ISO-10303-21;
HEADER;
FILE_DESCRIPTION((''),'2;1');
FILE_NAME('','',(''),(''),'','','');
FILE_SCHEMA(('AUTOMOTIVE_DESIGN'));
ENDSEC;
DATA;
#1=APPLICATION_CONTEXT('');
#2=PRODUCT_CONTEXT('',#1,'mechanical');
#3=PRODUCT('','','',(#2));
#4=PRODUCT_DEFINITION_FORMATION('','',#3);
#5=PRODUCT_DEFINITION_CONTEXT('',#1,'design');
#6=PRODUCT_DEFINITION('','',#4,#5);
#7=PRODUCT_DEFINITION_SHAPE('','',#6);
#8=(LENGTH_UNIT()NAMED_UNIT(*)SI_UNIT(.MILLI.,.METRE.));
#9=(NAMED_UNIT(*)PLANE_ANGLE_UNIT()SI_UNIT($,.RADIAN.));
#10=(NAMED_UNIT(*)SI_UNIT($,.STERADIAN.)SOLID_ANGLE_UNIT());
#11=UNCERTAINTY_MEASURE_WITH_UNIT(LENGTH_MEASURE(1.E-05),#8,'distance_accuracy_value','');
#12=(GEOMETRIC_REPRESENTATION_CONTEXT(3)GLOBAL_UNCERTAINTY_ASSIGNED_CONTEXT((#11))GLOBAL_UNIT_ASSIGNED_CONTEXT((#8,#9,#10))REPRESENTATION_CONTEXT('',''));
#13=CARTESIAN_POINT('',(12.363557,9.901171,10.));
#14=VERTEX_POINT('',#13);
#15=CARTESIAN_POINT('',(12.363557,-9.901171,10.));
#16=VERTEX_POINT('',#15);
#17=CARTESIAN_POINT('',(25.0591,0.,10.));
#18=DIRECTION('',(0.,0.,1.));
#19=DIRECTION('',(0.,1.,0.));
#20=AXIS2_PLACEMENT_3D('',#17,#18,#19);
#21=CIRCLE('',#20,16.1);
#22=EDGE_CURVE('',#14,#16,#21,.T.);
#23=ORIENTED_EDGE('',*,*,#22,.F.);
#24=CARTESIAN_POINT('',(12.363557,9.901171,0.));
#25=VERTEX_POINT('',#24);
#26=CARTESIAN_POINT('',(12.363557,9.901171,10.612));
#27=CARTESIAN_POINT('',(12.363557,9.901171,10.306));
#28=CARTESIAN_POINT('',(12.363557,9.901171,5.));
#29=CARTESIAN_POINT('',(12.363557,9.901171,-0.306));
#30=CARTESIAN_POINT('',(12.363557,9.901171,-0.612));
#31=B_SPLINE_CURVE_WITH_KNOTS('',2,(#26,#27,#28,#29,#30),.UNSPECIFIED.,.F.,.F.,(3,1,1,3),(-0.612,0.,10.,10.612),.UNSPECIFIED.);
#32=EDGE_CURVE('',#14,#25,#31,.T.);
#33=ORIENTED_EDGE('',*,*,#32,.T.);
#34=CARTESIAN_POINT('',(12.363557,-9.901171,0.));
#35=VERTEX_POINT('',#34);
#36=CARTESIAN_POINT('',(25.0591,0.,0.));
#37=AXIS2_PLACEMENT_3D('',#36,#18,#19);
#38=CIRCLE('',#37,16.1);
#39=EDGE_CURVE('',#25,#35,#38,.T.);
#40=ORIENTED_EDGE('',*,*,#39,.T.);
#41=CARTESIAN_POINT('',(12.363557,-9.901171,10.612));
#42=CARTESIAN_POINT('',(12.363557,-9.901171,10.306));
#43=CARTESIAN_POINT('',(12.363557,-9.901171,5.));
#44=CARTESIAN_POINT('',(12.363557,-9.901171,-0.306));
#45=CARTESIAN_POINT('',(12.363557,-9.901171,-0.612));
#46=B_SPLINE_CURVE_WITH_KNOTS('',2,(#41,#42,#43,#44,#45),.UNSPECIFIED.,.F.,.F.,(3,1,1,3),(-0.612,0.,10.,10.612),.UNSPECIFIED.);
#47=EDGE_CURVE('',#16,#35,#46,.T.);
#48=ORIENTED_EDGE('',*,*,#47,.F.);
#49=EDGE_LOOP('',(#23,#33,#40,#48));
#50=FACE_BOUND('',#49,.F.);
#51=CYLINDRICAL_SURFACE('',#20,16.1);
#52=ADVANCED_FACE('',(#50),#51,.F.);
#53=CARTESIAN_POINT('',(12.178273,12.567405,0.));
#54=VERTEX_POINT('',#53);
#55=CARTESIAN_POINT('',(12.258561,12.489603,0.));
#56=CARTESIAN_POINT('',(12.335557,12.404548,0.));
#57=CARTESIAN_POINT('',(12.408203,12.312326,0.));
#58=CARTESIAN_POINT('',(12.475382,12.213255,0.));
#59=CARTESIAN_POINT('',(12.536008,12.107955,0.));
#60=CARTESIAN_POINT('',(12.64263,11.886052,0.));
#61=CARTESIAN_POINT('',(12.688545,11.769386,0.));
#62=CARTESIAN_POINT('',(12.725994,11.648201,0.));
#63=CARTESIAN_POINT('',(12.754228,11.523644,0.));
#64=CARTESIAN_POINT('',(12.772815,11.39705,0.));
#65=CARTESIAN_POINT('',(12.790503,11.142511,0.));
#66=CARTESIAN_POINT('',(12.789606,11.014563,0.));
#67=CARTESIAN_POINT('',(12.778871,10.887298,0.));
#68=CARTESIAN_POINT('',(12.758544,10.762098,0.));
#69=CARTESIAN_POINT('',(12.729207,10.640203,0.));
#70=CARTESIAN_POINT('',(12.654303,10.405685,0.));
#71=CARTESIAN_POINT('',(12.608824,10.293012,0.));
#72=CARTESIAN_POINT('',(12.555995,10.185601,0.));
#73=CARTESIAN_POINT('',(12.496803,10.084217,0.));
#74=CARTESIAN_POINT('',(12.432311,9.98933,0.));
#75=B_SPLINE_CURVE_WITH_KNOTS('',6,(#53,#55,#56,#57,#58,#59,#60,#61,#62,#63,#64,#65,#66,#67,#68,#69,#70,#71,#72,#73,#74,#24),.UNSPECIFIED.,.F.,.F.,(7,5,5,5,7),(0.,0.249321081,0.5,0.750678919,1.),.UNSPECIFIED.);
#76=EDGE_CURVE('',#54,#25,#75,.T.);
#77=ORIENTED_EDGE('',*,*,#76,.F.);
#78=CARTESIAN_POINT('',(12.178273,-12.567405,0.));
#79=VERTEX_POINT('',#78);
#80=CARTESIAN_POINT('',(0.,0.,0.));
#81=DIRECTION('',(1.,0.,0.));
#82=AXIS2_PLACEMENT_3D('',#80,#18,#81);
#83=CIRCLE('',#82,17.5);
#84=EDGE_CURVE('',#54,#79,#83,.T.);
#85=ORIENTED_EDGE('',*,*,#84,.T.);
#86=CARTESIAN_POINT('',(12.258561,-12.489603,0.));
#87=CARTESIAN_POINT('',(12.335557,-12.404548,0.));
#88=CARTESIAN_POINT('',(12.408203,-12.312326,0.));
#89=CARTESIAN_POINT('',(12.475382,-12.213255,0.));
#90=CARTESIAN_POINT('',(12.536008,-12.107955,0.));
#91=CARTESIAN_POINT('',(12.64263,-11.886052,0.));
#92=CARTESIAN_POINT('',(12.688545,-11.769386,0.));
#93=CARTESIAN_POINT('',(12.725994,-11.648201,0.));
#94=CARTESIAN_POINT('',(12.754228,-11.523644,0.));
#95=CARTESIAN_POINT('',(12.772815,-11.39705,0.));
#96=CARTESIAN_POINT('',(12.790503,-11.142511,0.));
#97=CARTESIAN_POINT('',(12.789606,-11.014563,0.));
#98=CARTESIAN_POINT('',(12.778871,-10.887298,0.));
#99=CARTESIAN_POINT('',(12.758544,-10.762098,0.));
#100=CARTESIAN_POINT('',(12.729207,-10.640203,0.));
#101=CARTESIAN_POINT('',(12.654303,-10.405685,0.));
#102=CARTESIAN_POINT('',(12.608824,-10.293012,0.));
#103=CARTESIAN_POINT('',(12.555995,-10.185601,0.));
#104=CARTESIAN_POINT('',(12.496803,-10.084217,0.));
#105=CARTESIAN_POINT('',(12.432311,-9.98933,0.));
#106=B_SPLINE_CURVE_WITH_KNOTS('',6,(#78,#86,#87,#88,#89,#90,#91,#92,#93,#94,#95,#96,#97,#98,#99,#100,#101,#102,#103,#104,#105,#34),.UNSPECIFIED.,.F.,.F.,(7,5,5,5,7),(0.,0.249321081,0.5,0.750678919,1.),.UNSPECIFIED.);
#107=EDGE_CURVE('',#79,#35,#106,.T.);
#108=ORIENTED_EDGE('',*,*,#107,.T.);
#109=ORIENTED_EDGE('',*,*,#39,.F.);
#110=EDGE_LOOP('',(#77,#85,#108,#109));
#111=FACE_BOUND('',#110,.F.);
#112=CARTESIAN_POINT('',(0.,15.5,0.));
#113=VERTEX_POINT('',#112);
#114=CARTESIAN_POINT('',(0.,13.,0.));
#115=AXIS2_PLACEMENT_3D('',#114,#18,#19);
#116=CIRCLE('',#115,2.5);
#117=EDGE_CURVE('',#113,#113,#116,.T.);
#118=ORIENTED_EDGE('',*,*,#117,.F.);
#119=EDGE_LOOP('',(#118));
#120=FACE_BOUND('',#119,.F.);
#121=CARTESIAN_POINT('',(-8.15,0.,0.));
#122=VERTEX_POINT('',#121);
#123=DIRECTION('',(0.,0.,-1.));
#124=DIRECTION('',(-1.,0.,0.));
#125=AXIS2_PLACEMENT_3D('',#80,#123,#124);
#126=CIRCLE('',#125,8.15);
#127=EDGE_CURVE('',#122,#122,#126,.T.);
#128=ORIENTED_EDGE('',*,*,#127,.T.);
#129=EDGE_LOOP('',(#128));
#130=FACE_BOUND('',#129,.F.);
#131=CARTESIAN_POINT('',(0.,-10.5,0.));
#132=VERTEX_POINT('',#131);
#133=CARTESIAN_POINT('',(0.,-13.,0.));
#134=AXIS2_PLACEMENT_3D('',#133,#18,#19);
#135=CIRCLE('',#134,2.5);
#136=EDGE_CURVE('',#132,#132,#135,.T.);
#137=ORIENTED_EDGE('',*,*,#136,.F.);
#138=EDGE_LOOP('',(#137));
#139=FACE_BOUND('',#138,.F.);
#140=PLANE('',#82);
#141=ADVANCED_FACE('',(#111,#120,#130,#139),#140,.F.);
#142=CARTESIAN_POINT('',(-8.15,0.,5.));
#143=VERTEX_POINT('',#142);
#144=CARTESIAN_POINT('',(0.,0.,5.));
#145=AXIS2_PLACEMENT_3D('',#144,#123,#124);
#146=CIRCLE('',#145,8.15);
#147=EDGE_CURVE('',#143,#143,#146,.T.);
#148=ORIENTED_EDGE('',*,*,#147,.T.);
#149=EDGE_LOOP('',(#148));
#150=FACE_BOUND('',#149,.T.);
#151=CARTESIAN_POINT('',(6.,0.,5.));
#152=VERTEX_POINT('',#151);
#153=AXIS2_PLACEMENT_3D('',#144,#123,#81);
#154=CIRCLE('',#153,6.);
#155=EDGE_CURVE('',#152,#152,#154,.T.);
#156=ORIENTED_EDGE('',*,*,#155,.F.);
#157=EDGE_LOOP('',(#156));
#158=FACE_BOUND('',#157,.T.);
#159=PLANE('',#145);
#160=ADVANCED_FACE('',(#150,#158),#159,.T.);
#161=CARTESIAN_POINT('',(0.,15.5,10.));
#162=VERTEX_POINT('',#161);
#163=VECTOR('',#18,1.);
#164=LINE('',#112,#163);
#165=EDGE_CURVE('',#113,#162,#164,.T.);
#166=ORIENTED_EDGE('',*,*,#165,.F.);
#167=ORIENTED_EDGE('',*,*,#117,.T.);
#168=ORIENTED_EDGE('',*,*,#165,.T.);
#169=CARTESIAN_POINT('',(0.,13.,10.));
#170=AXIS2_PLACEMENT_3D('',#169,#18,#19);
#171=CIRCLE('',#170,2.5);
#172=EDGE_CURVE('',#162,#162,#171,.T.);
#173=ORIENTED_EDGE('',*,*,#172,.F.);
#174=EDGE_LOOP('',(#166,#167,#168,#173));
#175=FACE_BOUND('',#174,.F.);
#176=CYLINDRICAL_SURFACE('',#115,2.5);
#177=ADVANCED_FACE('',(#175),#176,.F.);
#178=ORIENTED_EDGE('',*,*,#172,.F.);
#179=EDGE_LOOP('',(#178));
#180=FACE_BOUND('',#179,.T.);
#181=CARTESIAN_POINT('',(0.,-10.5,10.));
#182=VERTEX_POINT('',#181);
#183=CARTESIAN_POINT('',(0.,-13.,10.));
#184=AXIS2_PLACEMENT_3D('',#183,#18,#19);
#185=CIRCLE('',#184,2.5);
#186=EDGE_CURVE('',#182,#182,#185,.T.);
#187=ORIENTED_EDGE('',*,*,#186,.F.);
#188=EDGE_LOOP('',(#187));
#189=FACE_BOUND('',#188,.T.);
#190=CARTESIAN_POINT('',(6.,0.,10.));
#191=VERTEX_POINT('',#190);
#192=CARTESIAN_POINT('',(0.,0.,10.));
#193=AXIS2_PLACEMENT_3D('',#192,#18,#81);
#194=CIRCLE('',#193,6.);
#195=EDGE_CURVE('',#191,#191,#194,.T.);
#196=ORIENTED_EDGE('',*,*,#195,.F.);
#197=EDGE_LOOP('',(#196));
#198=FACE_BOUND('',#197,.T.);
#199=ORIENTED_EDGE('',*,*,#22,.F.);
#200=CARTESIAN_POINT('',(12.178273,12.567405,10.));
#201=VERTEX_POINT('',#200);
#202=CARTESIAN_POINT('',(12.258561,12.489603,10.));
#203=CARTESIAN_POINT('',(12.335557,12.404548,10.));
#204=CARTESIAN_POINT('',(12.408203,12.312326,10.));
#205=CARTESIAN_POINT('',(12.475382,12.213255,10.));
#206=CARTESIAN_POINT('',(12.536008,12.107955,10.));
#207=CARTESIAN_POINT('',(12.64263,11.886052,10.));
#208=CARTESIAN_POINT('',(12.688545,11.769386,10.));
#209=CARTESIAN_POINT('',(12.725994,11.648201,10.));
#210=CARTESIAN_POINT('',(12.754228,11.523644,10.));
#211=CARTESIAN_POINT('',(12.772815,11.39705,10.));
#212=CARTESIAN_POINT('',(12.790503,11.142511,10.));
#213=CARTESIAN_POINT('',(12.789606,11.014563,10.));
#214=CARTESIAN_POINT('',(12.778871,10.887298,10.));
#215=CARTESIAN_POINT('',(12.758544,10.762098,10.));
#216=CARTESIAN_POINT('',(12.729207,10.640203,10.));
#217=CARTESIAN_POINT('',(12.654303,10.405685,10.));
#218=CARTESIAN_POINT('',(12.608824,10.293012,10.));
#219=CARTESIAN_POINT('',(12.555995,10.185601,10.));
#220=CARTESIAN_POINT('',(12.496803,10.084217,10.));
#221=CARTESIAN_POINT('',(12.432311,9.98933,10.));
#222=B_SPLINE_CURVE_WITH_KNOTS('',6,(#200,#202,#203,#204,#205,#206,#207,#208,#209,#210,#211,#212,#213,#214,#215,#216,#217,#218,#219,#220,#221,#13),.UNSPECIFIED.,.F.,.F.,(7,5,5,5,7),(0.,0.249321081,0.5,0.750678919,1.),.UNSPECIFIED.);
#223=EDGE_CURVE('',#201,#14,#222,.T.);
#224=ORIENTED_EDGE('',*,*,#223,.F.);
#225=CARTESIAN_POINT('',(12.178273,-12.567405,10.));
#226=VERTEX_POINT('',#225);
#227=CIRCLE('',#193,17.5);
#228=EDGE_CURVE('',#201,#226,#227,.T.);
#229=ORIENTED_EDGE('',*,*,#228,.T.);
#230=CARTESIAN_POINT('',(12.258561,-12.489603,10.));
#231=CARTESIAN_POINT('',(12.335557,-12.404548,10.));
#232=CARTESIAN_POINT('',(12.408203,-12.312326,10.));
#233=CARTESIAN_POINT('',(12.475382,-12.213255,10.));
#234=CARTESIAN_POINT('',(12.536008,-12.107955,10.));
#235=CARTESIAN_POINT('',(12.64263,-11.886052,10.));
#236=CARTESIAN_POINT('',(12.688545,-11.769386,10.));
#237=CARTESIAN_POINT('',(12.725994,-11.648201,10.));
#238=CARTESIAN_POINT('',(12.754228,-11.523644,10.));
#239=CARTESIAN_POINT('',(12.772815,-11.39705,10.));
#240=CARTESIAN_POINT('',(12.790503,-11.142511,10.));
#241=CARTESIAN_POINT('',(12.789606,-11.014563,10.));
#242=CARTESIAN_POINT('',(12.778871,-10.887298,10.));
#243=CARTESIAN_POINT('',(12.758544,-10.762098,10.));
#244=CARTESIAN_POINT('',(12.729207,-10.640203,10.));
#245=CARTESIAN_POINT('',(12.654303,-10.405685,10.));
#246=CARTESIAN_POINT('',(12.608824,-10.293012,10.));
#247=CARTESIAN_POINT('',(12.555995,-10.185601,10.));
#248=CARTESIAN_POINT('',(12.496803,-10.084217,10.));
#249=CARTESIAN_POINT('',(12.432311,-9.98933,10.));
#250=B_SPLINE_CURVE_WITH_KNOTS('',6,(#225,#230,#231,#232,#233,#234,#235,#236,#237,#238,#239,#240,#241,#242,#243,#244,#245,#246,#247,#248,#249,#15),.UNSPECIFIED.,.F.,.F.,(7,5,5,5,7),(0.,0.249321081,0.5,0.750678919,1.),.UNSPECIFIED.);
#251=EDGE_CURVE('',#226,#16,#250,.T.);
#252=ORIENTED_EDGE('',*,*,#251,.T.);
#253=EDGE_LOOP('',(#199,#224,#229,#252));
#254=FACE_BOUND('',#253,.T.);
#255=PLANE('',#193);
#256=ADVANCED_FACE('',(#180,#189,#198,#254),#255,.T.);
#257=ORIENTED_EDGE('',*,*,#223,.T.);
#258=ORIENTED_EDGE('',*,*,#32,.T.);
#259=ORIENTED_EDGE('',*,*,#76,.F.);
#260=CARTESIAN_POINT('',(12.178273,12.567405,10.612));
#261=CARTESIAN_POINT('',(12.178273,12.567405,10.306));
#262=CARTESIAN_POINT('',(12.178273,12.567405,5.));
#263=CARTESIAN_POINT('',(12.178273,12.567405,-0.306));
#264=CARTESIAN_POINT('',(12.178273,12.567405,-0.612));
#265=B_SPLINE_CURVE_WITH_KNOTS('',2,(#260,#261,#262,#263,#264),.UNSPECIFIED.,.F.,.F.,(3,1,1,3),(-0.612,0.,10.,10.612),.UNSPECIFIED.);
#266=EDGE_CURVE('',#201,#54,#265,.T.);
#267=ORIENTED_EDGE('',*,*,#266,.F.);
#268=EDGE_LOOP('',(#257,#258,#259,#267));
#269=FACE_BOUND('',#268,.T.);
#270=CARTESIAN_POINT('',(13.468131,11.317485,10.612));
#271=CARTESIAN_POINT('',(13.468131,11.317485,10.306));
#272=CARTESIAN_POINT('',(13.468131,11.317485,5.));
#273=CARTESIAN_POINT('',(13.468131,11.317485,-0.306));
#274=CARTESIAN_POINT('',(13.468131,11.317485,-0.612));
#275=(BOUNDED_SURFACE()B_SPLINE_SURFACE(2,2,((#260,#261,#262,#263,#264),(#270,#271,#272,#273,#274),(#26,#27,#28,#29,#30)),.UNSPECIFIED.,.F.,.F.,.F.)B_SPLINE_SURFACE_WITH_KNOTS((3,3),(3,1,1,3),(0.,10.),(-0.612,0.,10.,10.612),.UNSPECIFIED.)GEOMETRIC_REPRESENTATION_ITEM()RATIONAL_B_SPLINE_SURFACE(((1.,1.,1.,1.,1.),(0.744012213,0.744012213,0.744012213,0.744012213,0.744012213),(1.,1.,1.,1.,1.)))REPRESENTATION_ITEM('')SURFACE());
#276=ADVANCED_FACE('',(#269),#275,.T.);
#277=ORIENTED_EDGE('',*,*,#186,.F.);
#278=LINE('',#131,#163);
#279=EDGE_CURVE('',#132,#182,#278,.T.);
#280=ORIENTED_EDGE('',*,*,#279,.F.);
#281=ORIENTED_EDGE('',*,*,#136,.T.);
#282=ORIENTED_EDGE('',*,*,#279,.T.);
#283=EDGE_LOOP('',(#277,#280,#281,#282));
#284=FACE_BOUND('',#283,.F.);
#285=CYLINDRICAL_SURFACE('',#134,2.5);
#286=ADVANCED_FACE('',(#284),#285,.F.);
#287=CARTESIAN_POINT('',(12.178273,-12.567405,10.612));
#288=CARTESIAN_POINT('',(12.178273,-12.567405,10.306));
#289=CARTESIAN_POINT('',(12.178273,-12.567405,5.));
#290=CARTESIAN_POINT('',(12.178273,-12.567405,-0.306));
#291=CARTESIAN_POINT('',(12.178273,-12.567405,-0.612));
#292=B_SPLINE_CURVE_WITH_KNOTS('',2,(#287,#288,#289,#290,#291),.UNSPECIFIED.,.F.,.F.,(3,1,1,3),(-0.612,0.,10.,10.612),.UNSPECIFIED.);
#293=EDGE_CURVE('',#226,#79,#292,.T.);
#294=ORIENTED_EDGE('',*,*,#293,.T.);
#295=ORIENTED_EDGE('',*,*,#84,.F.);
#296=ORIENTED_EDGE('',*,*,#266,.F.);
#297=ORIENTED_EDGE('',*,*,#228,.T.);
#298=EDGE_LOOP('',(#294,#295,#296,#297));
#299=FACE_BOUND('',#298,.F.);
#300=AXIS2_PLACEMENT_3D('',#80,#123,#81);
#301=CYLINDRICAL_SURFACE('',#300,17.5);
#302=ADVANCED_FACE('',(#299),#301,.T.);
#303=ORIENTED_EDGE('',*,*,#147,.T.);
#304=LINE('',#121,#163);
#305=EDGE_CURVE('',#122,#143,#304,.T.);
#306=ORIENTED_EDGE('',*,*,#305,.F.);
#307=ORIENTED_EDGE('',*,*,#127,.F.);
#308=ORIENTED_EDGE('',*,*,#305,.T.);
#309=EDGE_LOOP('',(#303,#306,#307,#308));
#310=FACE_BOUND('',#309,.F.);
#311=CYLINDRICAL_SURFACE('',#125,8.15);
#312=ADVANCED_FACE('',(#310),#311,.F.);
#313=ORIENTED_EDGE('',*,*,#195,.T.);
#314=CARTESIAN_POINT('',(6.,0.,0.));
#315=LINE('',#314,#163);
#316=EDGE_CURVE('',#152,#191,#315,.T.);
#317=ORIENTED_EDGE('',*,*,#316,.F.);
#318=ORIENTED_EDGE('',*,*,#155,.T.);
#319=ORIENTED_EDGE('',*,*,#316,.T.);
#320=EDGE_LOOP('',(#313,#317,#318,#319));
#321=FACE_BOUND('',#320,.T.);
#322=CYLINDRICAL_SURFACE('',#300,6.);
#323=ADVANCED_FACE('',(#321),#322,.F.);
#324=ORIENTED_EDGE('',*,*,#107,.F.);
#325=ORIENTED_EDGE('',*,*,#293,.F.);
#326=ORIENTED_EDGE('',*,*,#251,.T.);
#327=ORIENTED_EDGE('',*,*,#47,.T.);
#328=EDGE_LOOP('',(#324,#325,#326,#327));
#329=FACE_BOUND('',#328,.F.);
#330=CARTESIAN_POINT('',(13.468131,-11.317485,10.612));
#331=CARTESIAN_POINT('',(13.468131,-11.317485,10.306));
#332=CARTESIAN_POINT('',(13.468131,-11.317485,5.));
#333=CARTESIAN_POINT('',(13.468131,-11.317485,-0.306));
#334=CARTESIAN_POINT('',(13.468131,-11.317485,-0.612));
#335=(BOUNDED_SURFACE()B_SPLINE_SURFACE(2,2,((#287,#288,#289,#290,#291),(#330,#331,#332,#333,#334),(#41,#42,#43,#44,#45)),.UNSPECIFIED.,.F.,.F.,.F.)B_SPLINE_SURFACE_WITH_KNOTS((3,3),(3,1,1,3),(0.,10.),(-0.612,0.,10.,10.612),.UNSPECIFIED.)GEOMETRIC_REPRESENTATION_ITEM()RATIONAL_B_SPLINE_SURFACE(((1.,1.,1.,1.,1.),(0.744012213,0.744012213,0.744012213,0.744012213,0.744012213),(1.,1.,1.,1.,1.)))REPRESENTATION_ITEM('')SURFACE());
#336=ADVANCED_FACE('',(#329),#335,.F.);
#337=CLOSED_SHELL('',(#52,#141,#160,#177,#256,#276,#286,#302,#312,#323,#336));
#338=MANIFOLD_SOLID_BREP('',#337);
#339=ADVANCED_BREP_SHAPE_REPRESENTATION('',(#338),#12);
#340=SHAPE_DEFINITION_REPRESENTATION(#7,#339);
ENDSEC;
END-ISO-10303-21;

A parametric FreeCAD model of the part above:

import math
import FreeCAD as App
import Part
import Sketcher
from FreeCAD import Vector


def edges_at(feature, points):
    """Names of the edges that pass closest to the given points."""
    edges = feature.Shape.Edges
    near = lambda p: min(range(len(edges)), key=lambda i: edges[i].distToShape(Part.Vertex(*p))[0])
    return sorted({f"Edge{near(p) + 1}" for p in points})

doc = App.newDocument("Part")
body = doc.addObject("PartDesign::Body", "Body")

# Sketch on XY plane
sketch1 = body.newObject("Sketcher::SketchObject", "Sketch")
sketch1.AttachmentSupport = (doc.getObject("XY_Plane"), [""])
sketch1.MapMode = "FlatFace"
sketch1.addGeometry(Part.Circle(Vector(0, 0, 0), Vector(0, 0, 1), 18), False)
sketch1.addGeometry(Part.Circle(Vector(0, 0, 0), Vector(0, 0, 1), 6), False)
sketch1.addConstraint(Sketcher.Constraint("Coincident", 0, 3, -1, 1))
sketch1.addConstraint(Sketcher.Constraint("Coincident", 1, 3, -1, 1))
sketch1.addConstraint(Sketcher.Constraint("Diameter", 0, 35.0))
sketch1.addConstraint(Sketcher.Constraint("Diameter", 1, 12.0))
pad1 = body.newObject("PartDesign::Pad", "Pad")
pad1.Profile = sketch1
pad1.Length = 10

# Sketch on XY plane
sketch2 = body.newObject("Sketcher::SketchObject", "Sketch001")
sketch2.AttachmentSupport = (doc.getObject("XY_Plane"), [""])
sketch2.MapMode = "FlatFace"
sketch2.addGeometry(Part.Circle(Vector(0, -13, 0), Vector(0, 0, 1), 2.5), False)
sketch2.addGeometry(Part.Circle(Vector(0, 13, 0), Vector(0, 0, 1), 2.5), False)
sketch2.addConstraint(Sketcher.Constraint("Equal", 0, 1))
sketch2.addConstraint(Sketcher.Constraint("Symmetric", 0, 3, 1, 3, -1, 1))
sketch2.addConstraint(Sketcher.Constraint("PointOnObject", 0, 3, -2))
sketch2.addConstraint(Sketcher.Constraint("Diameter", 0, 5.0))
sketch2.addConstraint(Sketcher.Constraint("DistanceY", 0, 3, -1, 1, 13.0))
doc.recompute()
hole = body.newObject("PartDesign::Hole", "Hole")
hole.Profile = sketch2
hole.ThreadType = "None"
hole.Diameter = 5
hole.DepthType = "ThroughAll"
hole.Reversed = True

# Sketch on XY plane
sketch3 = body.newObject("Sketcher::SketchObject", "Sketch002")
sketch3.AttachmentSupport = (doc.getObject("XY_Plane"), [""])
sketch3.MapMode = "FlatFace"
sketch3.addGeometry(Part.Circle(Vector(0, 0, 0), Vector(0, 0, 1), 8), False)
sketch3.addConstraint(Sketcher.Constraint("Coincident", 0, 3, -1, 1))
sketch3.addConstraint(Sketcher.Constraint("Diameter", 0, 16.3))
pocket1 = body.newObject("PartDesign::Pocket", "Pocket")
pocket1.Profile = sketch3
pocket1.Length = 5
pocket1.Reversed = True

# Sketch on XY plane
sketch4 = body.newObject("Sketcher::SketchObject", "Sketch003")
sketch4.AttachmentSupport = (doc.getObject("XY_Plane"), [""])
sketch4.MapMode = "FlatFace"
sketch4.AttachmentOffset = App.Placement(Vector(0, 0, 10), App.Rotation())
sketch4.addGeometry(Part.ArcOfCircle(Part.Circle(Vector(0, 0, 0), Vector(0, 0, 1), 18), math.radians(-40), math.radians(40)), False)
sketch4.addGeometry(Part.ArcOfCircle(Part.Circle(Vector(25, 0, 0), Vector(0, 0, 1), 16), math.radians(136), math.radians(224)), False)
sketch4.addConstraint(Sketcher.Constraint("Coincident", 0, 1, 1, 2))
sketch4.addConstraint(Sketcher.Constraint("Coincident", 1, 1, 0, 2))
sketch4.addConstraint(Sketcher.Constraint("Coincident", 0, 3, -1, 1))
sketch4.addConstraint(Sketcher.Constraint("PointOnObject", 1, 3, -1))
sketch4.addConstraint(Sketcher.Constraint("Radius", 0, 17.5))
sketch4.addConstraint(Sketcher.Constraint("Radius", 1, 16.1))
sketch4.addConstraint(Sketcher.Constraint("DistanceX", -1, 1, 1, 3, 25.059))
pocket2 = body.newObject("PartDesign::Pocket", "Pocket001")
pocket2.Profile = sketch4
pocket2.Type = "ThroughAll"
doc.recompute()

fillet = body.newObject("PartDesign::Fillet", "Fillet")
fillet.Base = (pocket2, edges_at(pocket2, [(13.468, -11.174, 5), (13.468, 11.174, 5)]))
fillet.Radius = 2

doc.recompute()
